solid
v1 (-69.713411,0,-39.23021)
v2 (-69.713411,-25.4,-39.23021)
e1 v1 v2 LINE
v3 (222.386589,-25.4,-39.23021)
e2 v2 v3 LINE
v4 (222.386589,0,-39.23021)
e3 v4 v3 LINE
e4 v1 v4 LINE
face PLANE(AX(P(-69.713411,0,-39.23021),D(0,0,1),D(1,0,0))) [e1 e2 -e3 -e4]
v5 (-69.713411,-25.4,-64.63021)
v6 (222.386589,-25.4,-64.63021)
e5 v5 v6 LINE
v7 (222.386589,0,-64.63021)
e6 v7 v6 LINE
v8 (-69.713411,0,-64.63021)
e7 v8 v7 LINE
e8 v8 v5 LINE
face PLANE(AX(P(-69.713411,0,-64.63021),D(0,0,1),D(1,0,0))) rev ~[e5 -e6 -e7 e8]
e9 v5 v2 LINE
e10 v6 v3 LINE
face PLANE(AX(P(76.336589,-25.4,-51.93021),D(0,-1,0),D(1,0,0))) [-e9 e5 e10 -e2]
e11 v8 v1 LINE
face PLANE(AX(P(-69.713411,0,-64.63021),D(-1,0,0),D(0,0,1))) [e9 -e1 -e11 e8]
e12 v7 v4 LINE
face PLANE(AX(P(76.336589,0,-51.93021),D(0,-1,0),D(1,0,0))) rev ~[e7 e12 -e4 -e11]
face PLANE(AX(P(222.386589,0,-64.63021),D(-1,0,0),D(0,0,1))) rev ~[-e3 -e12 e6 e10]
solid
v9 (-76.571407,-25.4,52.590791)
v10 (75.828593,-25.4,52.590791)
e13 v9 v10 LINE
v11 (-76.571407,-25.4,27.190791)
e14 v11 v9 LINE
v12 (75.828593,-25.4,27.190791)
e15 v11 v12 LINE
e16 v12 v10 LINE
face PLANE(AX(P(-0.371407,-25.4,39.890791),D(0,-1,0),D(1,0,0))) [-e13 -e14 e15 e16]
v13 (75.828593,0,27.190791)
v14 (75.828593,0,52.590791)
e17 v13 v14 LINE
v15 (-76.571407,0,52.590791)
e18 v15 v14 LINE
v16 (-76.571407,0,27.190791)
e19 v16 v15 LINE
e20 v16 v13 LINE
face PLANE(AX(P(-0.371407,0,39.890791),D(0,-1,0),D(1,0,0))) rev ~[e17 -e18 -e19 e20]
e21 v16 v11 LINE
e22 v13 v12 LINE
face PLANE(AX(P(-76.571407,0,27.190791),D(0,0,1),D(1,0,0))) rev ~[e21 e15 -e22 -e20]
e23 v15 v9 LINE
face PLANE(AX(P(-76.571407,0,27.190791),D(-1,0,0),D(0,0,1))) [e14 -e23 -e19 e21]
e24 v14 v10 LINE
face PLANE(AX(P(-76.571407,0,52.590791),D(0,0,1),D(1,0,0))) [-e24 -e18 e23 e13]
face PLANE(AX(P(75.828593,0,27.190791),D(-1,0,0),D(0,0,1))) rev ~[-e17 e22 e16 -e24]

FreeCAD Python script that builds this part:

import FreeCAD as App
import Part
import Sketcher
Q = App.Units.Quantity


def add_polygon(sketch, points):
    """Adds a closed chain of lines whose ends are joined by coincident constraints."""
    first, n = sketch.GeometryCount, len(points)
    for a, b in zip(points, points[1:] + points[:1]):
        sketch.addGeometry(Part.LineSegment(App.Vector(*a, 0), App.Vector(*b, 0)), False)
    for i in range(n):
        sketch.addConstraint(Sketcher.Constraint("Coincident", first + i, 2, first + (i + 1) % n, 1))

doc = App.newDocument("Part")
params = doc.addObject("Spreadsheet::Sheet", "Params")
for row, (alias, value) in enumerate([
    ("sketch1_width", "6 in"),
    ("sketch1_height", "1 in"),
    ("sketch1_width2", "11.5 in"),
    ("pad1_length", "1 in"),
], start=1):
    params.set(f"A{row}", alias)
    params.set(f"B{row}", "=" + value)
    params.setAlias(f"B{row}", alias)

body = doc.addObject("PartDesign::Body", "Body")
body.AllowCompound = True

# Sketch on XZ plane
sketch1 = body.newObject("Sketcher::SketchObject", "Sketch")
sketch1.AttachmentSupport = (doc.getObject("XZ_Plane"), [""])
sketch1.MapMode = "FlatFace"
add_polygon(sketch1, [(-77, 53), (-77, 27), (76, 27), (76, 53)])  # lines 0-3
add_polygon(sketch1, [(-70, -39), (-70, -65), (222, -65), (222, -39)])  # lines 4-7
sketch1.addConstraint([
    Sketcher.Constraint("Vertical", 0),
    Sketcher.Constraint("Horizontal", 1),
    Sketcher.Constraint("Vertical", 2),
    Sketcher.Constraint("Horizontal", 3),
    Sketcher.Constraint("Vertical", 4),
    Sketcher.Constraint("Horizontal", 5),
    Sketcher.Constraint("Vertical", 6),
    Sketcher.Constraint("Horizontal", 7),
    Sketcher.Constraint("Equal", 2, 4),
    Sketcher.Constraint("DistanceX", 1, 1, 1, 2, Q("6 in")),
    Sketcher.Constraint("DistanceY", 0, 2, 0, 1, Q("1 in")),
    Sketcher.Constraint("DistanceX", 5, 1, 5, 2, Q("11.5 in")),
    Sketcher.Constraint("DistanceX", 0, 2, 4, 2, Q("0.2699998 in")),
    Sketcher.Constraint("DistanceY", 4, 2, 0, 2, Q("3.615 in")),
    Sketcher.Constraint("DistanceY", -1, 1, 0, 2, Q("27.190791 mm")),
    Sketcher.Constraint("DistanceX", 4, 2, -1, 1, Q("69.713411 mm")),
])
sketch1.setExpression("Constraints[17]", "Params.sketch1_width")
sketch1.setExpression("Constraints[18]", "Params.sketch1_height")
sketch1.setExpression("Constraints[19]", "Params.sketch1_width2")
pad1 = body.newObject("PartDesign::Pad", "Pad")
pad1.Profile = sketch1
pad1.setExpression("Length", "Params.pad1_length")

doc.recompute()
